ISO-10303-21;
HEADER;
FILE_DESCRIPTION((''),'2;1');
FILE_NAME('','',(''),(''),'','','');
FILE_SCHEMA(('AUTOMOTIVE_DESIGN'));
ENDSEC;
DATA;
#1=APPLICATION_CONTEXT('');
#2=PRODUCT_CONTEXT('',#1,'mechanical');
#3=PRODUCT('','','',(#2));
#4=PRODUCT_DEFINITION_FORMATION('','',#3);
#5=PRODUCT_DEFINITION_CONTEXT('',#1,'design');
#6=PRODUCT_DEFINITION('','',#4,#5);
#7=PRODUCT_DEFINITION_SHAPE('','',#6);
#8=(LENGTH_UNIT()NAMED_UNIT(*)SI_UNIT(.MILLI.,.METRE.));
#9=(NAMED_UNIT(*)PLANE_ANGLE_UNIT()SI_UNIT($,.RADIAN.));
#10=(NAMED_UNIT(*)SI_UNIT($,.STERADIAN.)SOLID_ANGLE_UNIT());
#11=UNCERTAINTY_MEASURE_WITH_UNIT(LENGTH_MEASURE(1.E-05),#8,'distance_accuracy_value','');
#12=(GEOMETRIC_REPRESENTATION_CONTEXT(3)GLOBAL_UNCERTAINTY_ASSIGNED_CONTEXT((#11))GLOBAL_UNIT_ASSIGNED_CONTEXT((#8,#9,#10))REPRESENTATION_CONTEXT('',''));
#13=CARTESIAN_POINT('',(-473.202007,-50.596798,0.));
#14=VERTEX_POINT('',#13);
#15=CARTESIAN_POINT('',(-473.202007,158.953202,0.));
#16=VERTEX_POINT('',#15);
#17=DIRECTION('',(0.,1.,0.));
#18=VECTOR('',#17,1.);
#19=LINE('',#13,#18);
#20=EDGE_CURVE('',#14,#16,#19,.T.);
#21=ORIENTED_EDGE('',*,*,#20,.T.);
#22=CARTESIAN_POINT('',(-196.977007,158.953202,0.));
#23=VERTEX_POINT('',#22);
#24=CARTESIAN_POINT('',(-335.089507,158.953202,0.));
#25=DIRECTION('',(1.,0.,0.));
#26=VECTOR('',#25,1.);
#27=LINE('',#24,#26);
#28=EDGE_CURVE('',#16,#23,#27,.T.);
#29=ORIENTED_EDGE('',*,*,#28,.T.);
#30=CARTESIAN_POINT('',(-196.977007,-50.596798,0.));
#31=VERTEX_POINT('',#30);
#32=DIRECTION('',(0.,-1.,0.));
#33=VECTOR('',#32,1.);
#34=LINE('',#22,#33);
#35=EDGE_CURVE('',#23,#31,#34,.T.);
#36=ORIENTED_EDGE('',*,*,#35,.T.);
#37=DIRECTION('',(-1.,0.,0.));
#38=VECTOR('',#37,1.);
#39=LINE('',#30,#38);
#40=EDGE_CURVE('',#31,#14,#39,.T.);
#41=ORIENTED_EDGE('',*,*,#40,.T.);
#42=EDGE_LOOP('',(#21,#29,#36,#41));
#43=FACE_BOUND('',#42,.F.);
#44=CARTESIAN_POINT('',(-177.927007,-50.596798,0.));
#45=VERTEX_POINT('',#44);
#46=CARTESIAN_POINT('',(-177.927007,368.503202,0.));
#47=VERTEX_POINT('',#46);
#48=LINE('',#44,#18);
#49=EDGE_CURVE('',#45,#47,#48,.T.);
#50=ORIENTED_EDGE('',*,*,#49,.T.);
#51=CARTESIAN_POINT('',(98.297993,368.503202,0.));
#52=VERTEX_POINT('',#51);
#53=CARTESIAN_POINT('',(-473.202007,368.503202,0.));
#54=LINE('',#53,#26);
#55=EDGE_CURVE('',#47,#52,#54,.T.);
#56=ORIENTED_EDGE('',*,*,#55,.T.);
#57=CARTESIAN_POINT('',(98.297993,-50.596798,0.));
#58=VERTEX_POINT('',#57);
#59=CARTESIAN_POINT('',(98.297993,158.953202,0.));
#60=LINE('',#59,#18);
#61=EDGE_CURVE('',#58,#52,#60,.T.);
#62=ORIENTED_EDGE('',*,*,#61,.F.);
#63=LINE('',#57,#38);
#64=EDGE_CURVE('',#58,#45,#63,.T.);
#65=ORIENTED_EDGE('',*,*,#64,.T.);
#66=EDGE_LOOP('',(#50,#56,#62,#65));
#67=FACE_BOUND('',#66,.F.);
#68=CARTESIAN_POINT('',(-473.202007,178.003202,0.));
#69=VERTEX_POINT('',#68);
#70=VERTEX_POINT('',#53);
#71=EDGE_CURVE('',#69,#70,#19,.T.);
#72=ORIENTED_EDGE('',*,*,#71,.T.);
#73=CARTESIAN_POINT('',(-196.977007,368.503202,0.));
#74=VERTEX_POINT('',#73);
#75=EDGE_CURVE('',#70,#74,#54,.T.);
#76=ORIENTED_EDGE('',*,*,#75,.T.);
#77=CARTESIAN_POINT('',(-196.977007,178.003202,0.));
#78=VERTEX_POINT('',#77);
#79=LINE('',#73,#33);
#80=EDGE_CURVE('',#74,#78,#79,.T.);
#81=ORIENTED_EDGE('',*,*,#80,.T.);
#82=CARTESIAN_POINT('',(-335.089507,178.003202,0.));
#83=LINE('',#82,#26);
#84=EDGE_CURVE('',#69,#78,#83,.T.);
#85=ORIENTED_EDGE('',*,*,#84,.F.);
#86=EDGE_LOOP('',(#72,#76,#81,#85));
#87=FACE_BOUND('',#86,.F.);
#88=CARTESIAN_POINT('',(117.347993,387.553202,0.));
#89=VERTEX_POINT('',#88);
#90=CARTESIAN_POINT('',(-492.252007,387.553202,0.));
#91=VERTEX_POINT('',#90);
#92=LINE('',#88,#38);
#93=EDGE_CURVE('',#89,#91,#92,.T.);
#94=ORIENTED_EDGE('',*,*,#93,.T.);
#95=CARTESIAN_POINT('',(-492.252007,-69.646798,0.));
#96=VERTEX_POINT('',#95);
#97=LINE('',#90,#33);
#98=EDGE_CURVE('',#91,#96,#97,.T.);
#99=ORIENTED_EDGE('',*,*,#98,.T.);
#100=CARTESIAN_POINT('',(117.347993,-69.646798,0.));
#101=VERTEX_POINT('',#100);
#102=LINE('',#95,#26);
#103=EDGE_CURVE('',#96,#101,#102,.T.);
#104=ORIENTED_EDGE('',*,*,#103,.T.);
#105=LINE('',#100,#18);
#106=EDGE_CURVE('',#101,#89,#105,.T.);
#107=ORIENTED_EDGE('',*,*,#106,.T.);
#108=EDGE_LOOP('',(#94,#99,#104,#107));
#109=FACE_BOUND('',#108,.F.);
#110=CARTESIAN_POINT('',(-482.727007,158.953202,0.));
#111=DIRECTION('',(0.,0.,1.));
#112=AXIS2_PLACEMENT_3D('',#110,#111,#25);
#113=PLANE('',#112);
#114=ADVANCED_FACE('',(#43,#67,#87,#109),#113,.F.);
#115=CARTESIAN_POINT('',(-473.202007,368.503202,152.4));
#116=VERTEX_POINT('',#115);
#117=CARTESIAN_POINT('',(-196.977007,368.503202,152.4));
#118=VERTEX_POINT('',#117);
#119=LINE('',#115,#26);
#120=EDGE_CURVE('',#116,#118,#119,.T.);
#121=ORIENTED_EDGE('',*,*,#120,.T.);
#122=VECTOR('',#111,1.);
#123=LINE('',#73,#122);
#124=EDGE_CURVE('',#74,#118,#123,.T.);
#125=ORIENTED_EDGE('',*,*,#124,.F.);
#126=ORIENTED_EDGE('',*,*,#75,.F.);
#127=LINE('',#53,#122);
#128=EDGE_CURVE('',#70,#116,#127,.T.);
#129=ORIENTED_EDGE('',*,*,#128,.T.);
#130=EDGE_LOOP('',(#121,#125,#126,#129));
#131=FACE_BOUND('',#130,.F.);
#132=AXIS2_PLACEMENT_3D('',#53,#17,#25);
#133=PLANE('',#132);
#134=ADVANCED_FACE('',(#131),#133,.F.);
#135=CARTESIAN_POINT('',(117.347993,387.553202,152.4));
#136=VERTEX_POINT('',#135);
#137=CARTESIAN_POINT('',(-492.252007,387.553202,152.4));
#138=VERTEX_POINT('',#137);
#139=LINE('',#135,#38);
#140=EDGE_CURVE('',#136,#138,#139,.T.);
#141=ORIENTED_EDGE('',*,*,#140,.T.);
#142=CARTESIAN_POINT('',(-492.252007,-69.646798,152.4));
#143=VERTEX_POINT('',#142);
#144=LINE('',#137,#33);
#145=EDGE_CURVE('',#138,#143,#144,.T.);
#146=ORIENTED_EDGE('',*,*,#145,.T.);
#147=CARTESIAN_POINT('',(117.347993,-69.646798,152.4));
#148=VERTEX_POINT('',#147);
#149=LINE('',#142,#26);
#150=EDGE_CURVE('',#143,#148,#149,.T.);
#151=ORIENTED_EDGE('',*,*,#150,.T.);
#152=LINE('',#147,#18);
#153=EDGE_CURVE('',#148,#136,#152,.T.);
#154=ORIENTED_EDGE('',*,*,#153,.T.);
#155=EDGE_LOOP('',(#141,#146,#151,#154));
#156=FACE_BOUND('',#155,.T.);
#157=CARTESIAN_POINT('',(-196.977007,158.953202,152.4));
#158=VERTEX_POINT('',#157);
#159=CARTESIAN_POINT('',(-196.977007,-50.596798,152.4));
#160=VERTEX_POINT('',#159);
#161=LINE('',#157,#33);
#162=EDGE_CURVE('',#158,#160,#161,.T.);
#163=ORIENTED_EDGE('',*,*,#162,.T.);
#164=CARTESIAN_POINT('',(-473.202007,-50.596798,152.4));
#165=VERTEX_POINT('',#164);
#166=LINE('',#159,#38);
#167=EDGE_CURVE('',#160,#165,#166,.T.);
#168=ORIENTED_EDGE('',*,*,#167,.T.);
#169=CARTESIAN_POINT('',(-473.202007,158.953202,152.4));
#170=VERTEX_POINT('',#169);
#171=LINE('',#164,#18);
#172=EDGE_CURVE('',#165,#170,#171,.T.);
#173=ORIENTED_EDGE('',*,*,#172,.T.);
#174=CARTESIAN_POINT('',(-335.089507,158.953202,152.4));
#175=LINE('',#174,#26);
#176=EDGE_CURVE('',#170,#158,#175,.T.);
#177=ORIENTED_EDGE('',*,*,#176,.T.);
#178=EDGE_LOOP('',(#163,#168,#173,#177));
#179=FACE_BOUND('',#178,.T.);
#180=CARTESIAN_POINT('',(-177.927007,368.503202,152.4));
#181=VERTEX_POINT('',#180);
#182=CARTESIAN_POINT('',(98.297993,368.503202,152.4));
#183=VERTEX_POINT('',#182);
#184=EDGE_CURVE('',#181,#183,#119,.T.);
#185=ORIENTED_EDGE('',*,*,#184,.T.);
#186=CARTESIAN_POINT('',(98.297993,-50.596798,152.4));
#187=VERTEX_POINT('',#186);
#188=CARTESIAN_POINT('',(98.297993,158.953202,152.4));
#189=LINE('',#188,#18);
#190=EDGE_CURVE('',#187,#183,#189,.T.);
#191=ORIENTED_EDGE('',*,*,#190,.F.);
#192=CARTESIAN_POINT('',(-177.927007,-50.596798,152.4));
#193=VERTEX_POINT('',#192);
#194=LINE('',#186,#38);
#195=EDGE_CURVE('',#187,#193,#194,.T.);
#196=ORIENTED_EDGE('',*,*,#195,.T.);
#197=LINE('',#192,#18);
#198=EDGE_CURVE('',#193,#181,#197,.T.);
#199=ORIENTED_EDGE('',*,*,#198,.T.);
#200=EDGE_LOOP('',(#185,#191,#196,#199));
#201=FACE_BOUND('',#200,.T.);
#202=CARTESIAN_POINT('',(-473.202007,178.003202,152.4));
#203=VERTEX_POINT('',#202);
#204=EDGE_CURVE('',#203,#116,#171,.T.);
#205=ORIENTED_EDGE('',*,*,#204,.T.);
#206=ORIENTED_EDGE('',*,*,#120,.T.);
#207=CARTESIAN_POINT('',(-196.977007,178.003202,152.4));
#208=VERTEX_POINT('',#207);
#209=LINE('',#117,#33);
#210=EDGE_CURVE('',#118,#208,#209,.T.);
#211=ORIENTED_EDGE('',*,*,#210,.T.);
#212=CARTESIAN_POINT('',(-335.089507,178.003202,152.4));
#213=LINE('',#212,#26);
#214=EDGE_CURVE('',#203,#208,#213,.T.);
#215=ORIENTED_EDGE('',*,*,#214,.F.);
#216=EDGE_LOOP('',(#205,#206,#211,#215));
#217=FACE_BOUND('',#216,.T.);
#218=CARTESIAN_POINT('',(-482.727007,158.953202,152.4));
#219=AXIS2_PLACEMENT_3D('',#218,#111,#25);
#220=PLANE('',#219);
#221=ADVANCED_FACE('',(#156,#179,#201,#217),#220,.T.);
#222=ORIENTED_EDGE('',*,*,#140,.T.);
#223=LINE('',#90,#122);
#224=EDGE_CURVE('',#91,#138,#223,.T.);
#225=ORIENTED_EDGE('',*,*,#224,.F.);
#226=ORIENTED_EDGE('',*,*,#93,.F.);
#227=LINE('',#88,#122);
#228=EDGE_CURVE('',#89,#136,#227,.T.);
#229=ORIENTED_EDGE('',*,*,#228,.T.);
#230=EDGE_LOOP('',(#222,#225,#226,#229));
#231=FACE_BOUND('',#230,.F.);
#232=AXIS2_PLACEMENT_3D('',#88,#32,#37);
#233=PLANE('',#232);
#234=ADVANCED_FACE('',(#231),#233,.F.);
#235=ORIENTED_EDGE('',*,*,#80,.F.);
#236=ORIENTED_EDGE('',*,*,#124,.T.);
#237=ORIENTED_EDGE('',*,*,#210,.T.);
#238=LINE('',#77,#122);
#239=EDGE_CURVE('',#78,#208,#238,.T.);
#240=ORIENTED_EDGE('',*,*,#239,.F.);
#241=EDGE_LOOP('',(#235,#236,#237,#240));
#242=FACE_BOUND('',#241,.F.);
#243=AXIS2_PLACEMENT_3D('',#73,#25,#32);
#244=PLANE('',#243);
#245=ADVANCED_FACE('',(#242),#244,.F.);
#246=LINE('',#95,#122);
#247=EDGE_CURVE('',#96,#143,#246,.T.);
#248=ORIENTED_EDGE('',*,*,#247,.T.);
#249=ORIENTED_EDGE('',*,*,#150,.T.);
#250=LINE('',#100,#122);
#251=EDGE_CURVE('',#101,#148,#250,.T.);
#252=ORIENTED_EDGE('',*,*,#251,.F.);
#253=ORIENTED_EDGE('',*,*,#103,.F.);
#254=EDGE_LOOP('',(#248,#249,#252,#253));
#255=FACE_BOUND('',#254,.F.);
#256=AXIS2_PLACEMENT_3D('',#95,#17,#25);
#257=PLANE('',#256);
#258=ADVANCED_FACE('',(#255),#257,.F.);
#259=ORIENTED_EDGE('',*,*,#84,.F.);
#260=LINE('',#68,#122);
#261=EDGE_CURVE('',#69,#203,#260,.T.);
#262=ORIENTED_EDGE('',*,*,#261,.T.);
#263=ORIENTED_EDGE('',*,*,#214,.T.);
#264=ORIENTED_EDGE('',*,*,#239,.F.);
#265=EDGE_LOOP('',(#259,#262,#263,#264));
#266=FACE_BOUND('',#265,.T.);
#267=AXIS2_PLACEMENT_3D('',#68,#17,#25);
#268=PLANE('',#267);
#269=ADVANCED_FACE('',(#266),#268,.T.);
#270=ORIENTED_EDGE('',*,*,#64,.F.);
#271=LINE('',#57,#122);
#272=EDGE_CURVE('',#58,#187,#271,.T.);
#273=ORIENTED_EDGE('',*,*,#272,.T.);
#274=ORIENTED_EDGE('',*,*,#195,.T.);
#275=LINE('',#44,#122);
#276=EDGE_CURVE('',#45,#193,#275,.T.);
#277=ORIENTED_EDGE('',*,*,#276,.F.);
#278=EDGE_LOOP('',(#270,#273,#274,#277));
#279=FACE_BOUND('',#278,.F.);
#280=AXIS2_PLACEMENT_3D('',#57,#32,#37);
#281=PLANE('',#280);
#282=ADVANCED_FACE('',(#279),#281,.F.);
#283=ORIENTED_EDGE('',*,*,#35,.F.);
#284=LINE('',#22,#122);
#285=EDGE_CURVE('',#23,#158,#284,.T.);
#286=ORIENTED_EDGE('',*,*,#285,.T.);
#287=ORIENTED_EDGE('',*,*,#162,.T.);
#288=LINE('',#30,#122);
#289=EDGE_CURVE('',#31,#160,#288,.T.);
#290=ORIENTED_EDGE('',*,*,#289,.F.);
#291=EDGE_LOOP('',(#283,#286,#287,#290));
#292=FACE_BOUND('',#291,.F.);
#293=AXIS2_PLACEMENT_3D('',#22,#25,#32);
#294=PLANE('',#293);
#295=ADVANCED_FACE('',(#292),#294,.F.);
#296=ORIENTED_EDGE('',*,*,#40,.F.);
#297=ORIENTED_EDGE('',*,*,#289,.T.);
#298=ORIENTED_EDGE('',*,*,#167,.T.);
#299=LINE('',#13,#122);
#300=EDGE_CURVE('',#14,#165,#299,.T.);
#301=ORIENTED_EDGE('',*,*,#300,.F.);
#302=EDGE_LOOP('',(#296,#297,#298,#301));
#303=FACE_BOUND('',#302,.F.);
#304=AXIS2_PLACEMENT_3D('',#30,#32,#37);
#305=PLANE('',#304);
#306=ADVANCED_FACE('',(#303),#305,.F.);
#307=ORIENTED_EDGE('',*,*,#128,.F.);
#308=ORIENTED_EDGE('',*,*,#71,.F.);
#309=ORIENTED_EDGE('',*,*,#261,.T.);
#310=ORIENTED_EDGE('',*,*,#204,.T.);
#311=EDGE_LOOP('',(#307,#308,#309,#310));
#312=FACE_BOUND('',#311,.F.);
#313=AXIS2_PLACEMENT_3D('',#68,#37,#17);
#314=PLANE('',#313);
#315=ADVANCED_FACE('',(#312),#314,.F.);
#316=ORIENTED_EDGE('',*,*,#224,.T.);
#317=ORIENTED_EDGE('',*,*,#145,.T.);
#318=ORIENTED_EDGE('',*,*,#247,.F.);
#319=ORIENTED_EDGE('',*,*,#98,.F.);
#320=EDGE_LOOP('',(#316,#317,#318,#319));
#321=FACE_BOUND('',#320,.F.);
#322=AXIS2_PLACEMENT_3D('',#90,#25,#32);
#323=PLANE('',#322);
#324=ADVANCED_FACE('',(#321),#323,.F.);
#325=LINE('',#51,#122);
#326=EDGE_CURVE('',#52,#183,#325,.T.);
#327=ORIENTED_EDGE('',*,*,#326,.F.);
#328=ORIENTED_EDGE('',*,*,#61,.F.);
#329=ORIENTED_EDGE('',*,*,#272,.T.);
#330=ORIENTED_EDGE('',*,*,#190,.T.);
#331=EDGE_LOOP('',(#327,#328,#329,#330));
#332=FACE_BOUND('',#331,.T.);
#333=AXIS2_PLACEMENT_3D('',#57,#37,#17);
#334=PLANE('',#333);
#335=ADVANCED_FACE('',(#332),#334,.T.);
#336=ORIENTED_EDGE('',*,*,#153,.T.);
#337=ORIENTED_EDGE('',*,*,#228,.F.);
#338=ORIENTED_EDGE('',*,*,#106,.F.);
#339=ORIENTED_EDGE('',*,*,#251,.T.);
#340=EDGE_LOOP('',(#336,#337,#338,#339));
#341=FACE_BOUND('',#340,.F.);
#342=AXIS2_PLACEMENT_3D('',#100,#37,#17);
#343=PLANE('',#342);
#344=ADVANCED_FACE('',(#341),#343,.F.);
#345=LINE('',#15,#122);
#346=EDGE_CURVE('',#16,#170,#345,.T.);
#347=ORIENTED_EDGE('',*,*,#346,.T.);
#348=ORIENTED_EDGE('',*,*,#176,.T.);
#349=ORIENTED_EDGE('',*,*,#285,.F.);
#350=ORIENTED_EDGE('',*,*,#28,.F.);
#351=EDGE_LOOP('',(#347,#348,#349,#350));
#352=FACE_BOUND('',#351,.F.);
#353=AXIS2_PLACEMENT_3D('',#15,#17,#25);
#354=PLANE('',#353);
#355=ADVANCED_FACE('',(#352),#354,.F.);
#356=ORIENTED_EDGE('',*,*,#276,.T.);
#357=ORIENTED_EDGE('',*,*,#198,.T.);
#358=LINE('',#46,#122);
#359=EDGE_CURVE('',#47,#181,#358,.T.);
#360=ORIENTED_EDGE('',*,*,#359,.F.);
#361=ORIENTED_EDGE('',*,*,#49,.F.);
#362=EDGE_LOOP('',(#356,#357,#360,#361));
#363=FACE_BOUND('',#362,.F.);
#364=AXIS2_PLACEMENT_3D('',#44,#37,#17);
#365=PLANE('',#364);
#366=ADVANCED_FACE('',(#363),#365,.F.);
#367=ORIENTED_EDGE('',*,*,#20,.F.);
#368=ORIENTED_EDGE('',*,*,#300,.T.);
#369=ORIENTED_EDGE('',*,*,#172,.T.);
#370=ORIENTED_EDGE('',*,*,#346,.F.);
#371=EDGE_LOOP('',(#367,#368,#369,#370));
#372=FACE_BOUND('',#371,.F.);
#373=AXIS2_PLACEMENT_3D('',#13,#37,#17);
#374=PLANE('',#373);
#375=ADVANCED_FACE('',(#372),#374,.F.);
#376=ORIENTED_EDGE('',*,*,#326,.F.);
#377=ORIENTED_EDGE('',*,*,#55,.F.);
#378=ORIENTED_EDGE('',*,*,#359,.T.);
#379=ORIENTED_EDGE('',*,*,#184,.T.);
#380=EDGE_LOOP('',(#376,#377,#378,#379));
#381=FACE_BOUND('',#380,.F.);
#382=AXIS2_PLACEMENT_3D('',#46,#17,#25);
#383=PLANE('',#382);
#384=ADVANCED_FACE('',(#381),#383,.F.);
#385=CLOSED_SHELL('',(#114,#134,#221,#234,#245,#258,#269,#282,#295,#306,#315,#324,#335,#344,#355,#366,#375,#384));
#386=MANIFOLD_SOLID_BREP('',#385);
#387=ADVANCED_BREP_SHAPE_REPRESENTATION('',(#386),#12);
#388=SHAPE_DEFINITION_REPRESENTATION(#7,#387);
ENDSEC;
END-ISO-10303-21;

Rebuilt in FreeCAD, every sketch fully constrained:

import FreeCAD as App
import Part
import Sketcher
from FreeCAD import Vector
Q = App.Units.Quantity

doc = App.newDocument("Part")
body = doc.addObject("PartDesign::Body", "Body")

sketch1 = doc.addObject("Sketcher::SketchObject", "Sketch")
body.addObject(sketch1)
sketch1.AttachmentSupport = (doc.XY_Plane, [""])
sketch1.MapMode = "FlatFace"
sketch1.addGeometry([
    Part.LineSegment(Vector(117.347993, 387.553202, 0), Vector(-492.252007, 387.553202, 0)),
    Part.LineSegment(Vector(-492.252007, 387.553202, 0), Vector(-492.252007, -69.646798, 0)),
    Part.LineSegment(Vector(-492.252007, -69.646798, 0), Vector(117.347993, -69.646798, 0)),
    Part.LineSegment(Vector(117.347993, -69.646798, 0), Vector(117.347993, 387.553202, 0)),
    Part.LineSegment(Vector(-473.202007, -50.596798, 0), Vector(-473.202007, 158.953202, 0)),
    Part.LineSegment(Vector(-473.202007, 158.953202, 0), Vector(-196.977007, 158.953202, 0)),
    Part.LineSegment(Vector(-196.977007, 158.953202, 0), Vector(-196.977007, -50.596798, 0)),
    Part.LineSegment(Vector(-196.977007, -50.596798, 0), Vector(-473.202007, -50.596798, 0)),
    Part.LineSegment(Vector(-177.927007, -50.596798, 0), Vector(-177.927007, 368.503202, 0)),
    Part.LineSegment(Vector(-177.927007, 368.503202, 0), Vector(98.297993, 368.503202, 0)),
    Part.LineSegment(Vector(98.297993, 368.503202, 0), Vector(98.297993, -50.596798, 0)),
    Part.LineSegment(Vector(98.297993, -50.596798, 0), Vector(-177.927007, -50.596798, 0)),
    Part.LineSegment(Vector(-196.977007, 178.003202, 0), Vector(-473.202007, 178.003202, 0)),
    Part.LineSegment(Vector(-473.202007, 178.003202, 0), Vector(-473.202007, 368.503202, 0)),
    Part.LineSegment(Vector(-473.202007, 368.503202, 0), Vector(-196.977007, 368.503202, 0)),
    Part.LineSegment(Vector(-196.977007, 368.503202, 0), Vector(-196.977007, 178.003202, 0)),
], False)
sketch1.addConstraint([
    Sketcher.Constraint("Coincident", 0, 2, 1, 1),
    Sketcher.Constraint("Coincident", 1, 2, 2, 1),
    Sketcher.Constraint("Coincident", 2, 2, 3, 1),
    Sketcher.Constraint("Coincident", 3, 2, 0, 1),
    Sketcher.Constraint("Coincident", 4, 2, 5, 1),
    Sketcher.Constraint("Coincident", 5, 2, 6, 1),
    Sketcher.Constraint("Coincident", 6, 2, 7, 1),
    Sketcher.Constraint("Coincident", 7, 2, 4, 1),
    Sketcher.Constraint("Coincident", 8, 2, 9, 1),
    Sketcher.Constraint("Coincident", 9, 2, 10, 1),
    Sketcher.Constraint("Coincident", 10, 2, 11, 1),
    Sketcher.Constraint("Coincident", 11, 2, 8, 1),
    Sketcher.Constraint("Coincident", 12, 2, 13, 1),
    Sketcher.Constraint("Coincident", 13, 2, 14, 1),
    Sketcher.Constraint("Coincident", 14, 2, 15, 1),
    Sketcher.Constraint("Coincident", 15, 2, 12, 1),
    Sketcher.Constraint("Horizontal", 0),
    Sketcher.Constraint("Vertical", 1),
    Sketcher.Constraint("Horizontal", 2),
    Sketcher.Constraint("Vertical", 3),
    Sketcher.Constraint("Vertical", 4),
    Sketcher.Constraint("Horizontal", 5),
    Sketcher.Constraint("Vertical", 6),
    Sketcher.Constraint("Horizontal", 7),
    Sketcher.Constraint("Vertical", 8),
    Sketcher.Constraint("Horizontal", 9),
    Sketcher.Constraint("Vertical", 10),
    Sketcher.Constraint("Horizontal", 11),
    Sketcher.Constraint("Horizontal", 12),
    Sketcher.Constraint("Vertical", 13),
    Sketcher.Constraint("Horizontal", 14),
    Sketcher.Constraint("Vertical", 15),
    Sketcher.Constraint("Horizontal", 7, 2, 10, 2),
    Sketcher.Constraint("Horizontal", 9, 2, 13, 2),
    Sketcher.Constraint("Vertical", 7, 2, 12, 2),
    Sketcher.Constraint("Vertical", 6, 2, 14, 2),
    Sketcher.Constraint("Equal", 7, 9),
    Sketcher.Constraint("DistanceX", 0, 2, 0, 1, Q("24 in")),
    Sketcher.Constraint("DistanceY", 1, 2, 1, 1, Q("18 in")),
    Sketcher.Constraint("DistanceY", 8, 1, 8, 2, Q("16.5 in")),
    Sketcher.Constraint("DistanceY", 13, 1, 13, 2, Q("7.5 in")),
    Sketcher.Constraint("DistanceY", 4, 2, 0, 2, Q("9 in")),
    Sketcher.Constraint("DistanceY", 4, 1, 4, 2, Q("8.25 in")),
    Sketcher.Constraint("DistanceX", 5, 1, 5, 2, Q("10.875 in")),
    Sketcher.Constraint("DistanceX", 0, 2, 4, 2, Q("0.75 in")),
    Sketcher.Constraint("DistanceX", 5, 2, 8, 2, Q("0.75 in")),
    Sketcher.Constraint("DistanceY", -1, 1, 0, 2, Q("15.2580001 in")),
    Sketcher.Constraint("DistanceX", 0, 2, -1, 1, Q("492.252007 mm")),
])
pad1 = doc.addObject("PartDesign::Pad", "Pad")
body.addObject(pad1)
pad1.Profile = sketch1
pad1.Length = Q("6 in")

doc.recompute()
